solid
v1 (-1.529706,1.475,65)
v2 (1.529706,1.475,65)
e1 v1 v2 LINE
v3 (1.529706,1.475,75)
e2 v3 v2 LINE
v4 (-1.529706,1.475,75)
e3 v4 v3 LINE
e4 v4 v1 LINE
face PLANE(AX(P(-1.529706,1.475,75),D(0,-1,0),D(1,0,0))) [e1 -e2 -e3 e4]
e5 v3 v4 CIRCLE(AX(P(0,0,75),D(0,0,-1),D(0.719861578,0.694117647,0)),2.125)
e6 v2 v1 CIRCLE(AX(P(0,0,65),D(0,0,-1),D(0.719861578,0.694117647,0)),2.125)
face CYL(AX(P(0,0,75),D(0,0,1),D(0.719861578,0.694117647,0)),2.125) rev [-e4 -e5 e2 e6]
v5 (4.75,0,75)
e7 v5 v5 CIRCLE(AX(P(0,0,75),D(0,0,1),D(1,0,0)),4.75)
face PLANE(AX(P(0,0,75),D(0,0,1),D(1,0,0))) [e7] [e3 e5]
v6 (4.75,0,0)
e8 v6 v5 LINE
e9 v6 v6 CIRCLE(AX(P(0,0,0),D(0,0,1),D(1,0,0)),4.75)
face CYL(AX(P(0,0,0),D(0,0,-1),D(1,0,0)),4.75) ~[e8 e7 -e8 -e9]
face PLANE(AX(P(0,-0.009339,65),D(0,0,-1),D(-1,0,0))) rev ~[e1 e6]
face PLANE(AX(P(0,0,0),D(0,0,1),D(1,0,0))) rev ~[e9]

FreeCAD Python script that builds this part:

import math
import FreeCAD as App
import Part
import Sketcher

V = App.Vector
Q = App.Units.Quantity

doc = App.newDocument("Part")
params = doc.addObject("Spreadsheet::Sheet", "Params")
for row, (alias, value) in enumerate([
    ("sketch1_diameter", "9.5 mm"),
    ("pad1_length", "75 mm"),
    ("pocket1_length", "10 mm"),
], start=1):
    params.set(f"A{row}", alias)
    params.set(f"B{row}", "=" + value)
    params.setAlias(f"B{row}", alias)

body = doc.addObject("PartDesign::Body", "Body")

sketch1 = body.newObject("Sketcher::SketchObject", "Sketch")
sketch1.AttachmentSupport = (doc.getObject("XY_Plane"), [""])
sketch1.MapMode = "FlatFace"
sketch1.addGeometry(Part.Circle(V(0, 0, 0), V(0, 0, 1), 4.8), False)
sketch1.addConstraint(Sketcher.Constraint("Coincident", 0, 3, -1, 1))
sketch1.addConstraint(Sketcher.Constraint("Diameter", 0, Q("9.5 mm")))
sketch1.setExpression("Constraints[1]", "Params.sketch1_diameter")
pad1 = body.newObject("PartDesign::Pad", "Pad")
pad1.Profile = sketch1
pad1.setExpression("Length", "Params.pad1_length")

sketch2 = body.newObject("Sketcher::SketchObject", "Sketch001")
sketch2.AttachmentSupport = (doc.getObject("XY_Plane"), [""])
sketch2.MapMode = "FlatFace"
sketch2.AttachmentOffset = App.Placement(V(0, 0, 75), App.Rotation())
sketch2.addGeometry(Part.LineSegment(V(1.5, 1.5, 0), V(-1.5, 1.5, 0)), False)
sketch2.addGeometry(Part.ArcOfCircle(Part.Circle(V(0, 0, 0), V(0, 0, 1), 2.1), math.radians(136), math.radians(404)), False)
sketch2.addConstraint(Sketcher.Constraint("Coincident", 0, 1, 1, 2))
sketch2.addConstraint(Sketcher.Constraint("Coincident", 1, 1, 0, 2))
sketch2.addConstraint(Sketcher.Constraint("Horizontal", 0))
sketch2.addConstraint(Sketcher.Constraint("Coincident", 1, 3, -1, 1))
sketch2.addConstraint(Sketcher.Constraint("Radius", 1, Q("2.125 mm")))
sketch2.addConstraint(Sketcher.Constraint("DistanceY", -1, 1, 0, 1, Q("1.475 mm")))
pocket1 = body.newObject("PartDesign::Pocket", "Pocket")
pocket1.Profile = sketch2
pocket1.setExpression("Length", "Params.pocket1_length")

doc.recompute()
